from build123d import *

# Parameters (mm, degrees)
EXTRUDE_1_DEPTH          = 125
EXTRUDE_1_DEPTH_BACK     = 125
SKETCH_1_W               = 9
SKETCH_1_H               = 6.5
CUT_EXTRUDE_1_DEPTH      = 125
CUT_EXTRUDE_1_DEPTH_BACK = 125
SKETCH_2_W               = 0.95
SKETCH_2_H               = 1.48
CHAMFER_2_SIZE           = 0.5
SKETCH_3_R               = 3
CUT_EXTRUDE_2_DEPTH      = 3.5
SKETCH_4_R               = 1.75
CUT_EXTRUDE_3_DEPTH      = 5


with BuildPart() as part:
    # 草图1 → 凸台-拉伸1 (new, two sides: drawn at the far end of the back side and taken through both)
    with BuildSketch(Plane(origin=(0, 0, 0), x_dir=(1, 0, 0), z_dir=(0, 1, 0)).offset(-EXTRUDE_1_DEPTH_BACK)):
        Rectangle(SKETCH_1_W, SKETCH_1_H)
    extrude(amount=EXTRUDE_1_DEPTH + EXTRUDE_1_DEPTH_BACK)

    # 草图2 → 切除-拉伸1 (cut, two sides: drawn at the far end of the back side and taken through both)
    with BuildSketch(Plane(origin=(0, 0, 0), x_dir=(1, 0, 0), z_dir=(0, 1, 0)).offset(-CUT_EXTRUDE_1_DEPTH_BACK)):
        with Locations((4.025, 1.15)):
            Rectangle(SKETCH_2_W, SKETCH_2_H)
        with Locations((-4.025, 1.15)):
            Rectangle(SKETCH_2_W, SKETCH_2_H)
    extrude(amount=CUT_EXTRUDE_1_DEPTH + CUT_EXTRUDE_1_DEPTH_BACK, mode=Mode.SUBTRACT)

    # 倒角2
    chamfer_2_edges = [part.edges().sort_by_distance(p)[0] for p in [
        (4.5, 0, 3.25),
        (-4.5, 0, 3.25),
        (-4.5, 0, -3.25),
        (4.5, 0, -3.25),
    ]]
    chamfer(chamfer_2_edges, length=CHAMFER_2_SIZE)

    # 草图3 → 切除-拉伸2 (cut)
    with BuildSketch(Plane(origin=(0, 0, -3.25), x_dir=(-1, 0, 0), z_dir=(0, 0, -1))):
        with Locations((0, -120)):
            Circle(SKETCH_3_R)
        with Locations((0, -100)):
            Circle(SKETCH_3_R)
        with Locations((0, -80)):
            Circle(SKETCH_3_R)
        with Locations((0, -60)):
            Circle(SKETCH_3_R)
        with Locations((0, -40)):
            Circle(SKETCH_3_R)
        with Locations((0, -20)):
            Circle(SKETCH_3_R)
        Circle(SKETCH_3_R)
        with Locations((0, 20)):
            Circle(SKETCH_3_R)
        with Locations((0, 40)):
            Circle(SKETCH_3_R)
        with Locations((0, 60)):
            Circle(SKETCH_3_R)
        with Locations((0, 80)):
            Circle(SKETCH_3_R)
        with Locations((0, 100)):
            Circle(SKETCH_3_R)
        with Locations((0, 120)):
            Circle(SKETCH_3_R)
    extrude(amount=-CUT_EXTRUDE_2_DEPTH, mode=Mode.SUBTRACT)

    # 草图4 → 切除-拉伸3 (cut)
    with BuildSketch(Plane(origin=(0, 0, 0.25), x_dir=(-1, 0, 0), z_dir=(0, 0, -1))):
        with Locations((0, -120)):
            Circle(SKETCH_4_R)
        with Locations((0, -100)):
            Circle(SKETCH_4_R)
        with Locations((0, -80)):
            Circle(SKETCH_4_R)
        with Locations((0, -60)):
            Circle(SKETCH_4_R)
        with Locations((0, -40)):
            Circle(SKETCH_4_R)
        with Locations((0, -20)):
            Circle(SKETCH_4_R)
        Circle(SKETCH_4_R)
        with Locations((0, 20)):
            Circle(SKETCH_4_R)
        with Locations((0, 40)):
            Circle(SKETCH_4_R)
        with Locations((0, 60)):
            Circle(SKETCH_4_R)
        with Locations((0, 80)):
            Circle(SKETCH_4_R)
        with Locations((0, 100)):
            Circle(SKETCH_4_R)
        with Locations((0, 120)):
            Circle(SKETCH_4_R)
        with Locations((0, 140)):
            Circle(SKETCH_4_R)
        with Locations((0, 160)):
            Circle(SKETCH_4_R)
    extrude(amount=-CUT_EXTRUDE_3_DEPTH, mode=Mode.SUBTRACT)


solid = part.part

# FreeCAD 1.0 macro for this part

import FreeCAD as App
import Part
import Sketcher

V = App.Vector


def edges_at(feature, points):
    """Names of the edges that pass closest to the given points."""
    edges = feature.Shape.Edges
    near = lambda p: min(range(len(edges)), key=lambda i: edges[i].distToShape(Part.Vertex(*p))[0])
    return sorted({f"Edge{near(p) + 1}" for p in points})


def add_polygon(sketch, points):
    """Adds a closed chain of lines whose ends are joined by coincident constraints."""
    first, n = sketch.GeometryCount, len(points)
    for a, b in zip(points, points[1:] + points[:1]):
        sketch.addGeometry(Part.LineSegment(App.Vector(*a, 0), App.Vector(*b, 0)), False)
    for i in range(n):
        sketch.addConstraint(Sketcher.Constraint("Coincident", first + i, 2, first + (i + 1) % n, 1))

doc = App.newDocument("Part")
body = doc.addObject("PartDesign::Body", "Body")

# Sketch on XZ plane
sketch1 = doc.addObject("Sketcher::SketchObject", "Sketch")
body.addObject(sketch1)
sketch1.AttachmentSupport = (doc.XZ_Plane, [""])
sketch1.MapMode = "FlatFace"
add_polygon(sketch1, [(-4, -3), (-4, 3), (4, 3), (4, -3)])  # lines 0-3
sketch1.addConstraint([
    Sketcher.Constraint("Vertical", 0),
    Sketcher.Constraint("Horizontal", 1),
    Sketcher.Constraint("Vertical", 2),
    Sketcher.Constraint("Horizontal", 3),
    Sketcher.Constraint("Symmetric", 0, 2, 2, 2, -1, 1),
    Sketcher.Constraint("DistanceX", 1, 1, 1, 2, 9.0),
    Sketcher.Constraint("DistanceY", 0, 1, 0, 2, 6.5),
])
pad1 = doc.addObject("PartDesign::Pad", "Pad")
body.addObject(pad1)
pad1.Profile = sketch1
pad1.Type = "TwoLengths"
pad1.Length = 125
pad1.Length2 = 125
pad1.Reversed = True

# Sketch on XZ plane
sketch2 = doc.addObject("Sketcher::SketchObject", "Sketch001")
body.addObject(sketch2)
sketch2.AttachmentSupport = (doc.XZ_Plane, [""])
sketch2.MapMode = "FlatFace"
add_polygon(sketch2, [(3.5, -1.9), (3.5, -0.4), (4.5, -0.4), (4.5, -1.9)])  # lines 0-3
add_polygon(sketch2, [(-4.5, -1.9), (-4.5, -0.4), (-3.5, -0.4), (-3.5, -1.9)])  # lines 4-7
sketch2.addConstraint([
    Sketcher.Constraint("Vertical", 0),
    Sketcher.Constraint("Horizontal", 1),
    Sketcher.Constraint("Vertical", 2),
    Sketcher.Constraint("Horizontal", 3),
    Sketcher.Constraint("Vertical", 4),
    Sketcher.Constraint("Horizontal", 5),
    Sketcher.Constraint("Vertical", 6),
    Sketcher.Constraint("Horizontal", 7),
    Sketcher.Constraint("Symmetric", 1, 2, 4, 2, -2),
    Sketcher.Constraint("Symmetric", 3, 2, 6, 2, -2),
    Sketcher.Constraint("DistanceX", 4, 2, 1, 2, 9.0),
    Sketcher.Constraint("DistanceX", 1, 1, 1, 2, 0.95),
    Sketcher.Constraint("DistanceY", 0, 1, 0, 2, 1.48),
    Sketcher.Constraint("DistanceY", 0, 2, -1, 1, 0.41),
])
pocket1 = doc.addObject("PartDesign::Pocket", "Pocket")
body.addObject(pocket1)
pocket1.Profile = sketch2
pocket1.Type = "ThroughAll"
pocket1.Midplane = True
doc.recompute()

chamfer = doc.addObject("PartDesign::Chamfer", "Chamfer")
body.addObject(chamfer)
chamfer.Base = (pocket1, edges_at(pocket1, [
    (4.5, 0, 3.25),
    (-4.5, 0, 3.25),
    (-4.5, 0, -3.25),
    (4.5, 0, -3.25),
]))
chamfer.Size = 0.5

# Sketch on XY plane
sketch3 = doc.addObject("Sketcher::SketchObject", "Sketch002")
body.addObject(sketch3)
sketch3.AttachmentSupport = (doc.XY_Plane, [""])
sketch3.MapMode = "FlatFace"
sketch3.AttachmentOffset = App.Placement(V(0, 0, -3.25), App.Rotation())
sketch3.addGeometry([
    Part.Circle(V(0, -120, 0), V(0, 0, 1), 3),  # 0
    Part.Circle(V(0, -100, 0), V(0, 0, 1), 3),  # 1
    Part.Circle(V(0, -80, 0), V(0, 0, 1), 3),  # 2
    Part.Circle(V(0, -60, 0), V(0, 0, 1), 3),  # 3
    Part.Circle(V(0, -40, 0), V(0, 0, 1), 3),  # 4
    Part.Circle(V(0, -20, 0), V(0, 0, 1), 3),  # 5
    Part.Circle(V(0, 0, 0), V(0, 0, 1), 3),  # 6
    Part.Circle(V(0, 20, 0), V(0, 0, 1), 3),  # 7
    Part.Circle(V(0, 40, 0), V(0, 0, 1), 3),  # 8
    Part.Circle(V(0, 60, 0), V(0, 0, 1), 3),  # 9
    Part.Circle(V(0, 80, 0), V(0, 0, 1), 3),  # 10
    Part.Circle(V(0, 100, 0), V(0, 0, 1), 3),  # 11
    Part.Circle(V(0, 120, 0), V(0, 0, 1), 3),  # 12
], False)
sketch3.addConstraint([
    Sketcher.Constraint("Coincident", 6, 3, -1, 1),
    Sketcher.Constraint("Equal", 0, 1),
    Sketcher.Constraint("Equal", 1, 2),
    Sketcher.Constraint("Equal", 2, 3),
    Sketcher.Constraint("Equal", 3, 4),
    Sketcher.Constraint("Equal", 4, 5),
    Sketcher.Constraint("Equal", 5, 6),
    Sketcher.Constraint("Equal", 6, 7),
    Sketcher.Constraint("Equal", 7, 8),
    Sketcher.Constraint("Equal", 8, 9),
    Sketcher.Constraint("Equal", 9, 10),
    Sketcher.Constraint("Equal", 10, 11),
    Sketcher.Constraint("Equal", 11, 12),
    Sketcher.Constraint("Symmetric", 5, 3, 7, 3, -1, 1),
    Sketcher.Constraint("Symmetric", 4, 3, 8, 3, -1, 1),
    Sketcher.Constraint("Symmetric", 3, 3, 9, 3, -1, 1),
    Sketcher.Constraint("Symmetric", 2, 3, 10, 3, -1, 1),
    Sketcher.Constraint("Symmetric", 1, 3, 11, 3, -1, 1),
    Sketcher.Constraint("Symmetric", 0, 3, 12, 3, -1, 1),
    Sketcher.Constraint("PointOnObject", 0, 3, -2),
    Sketcher.Constraint("PointOnObject", 1, 3, -2),
    Sketcher.Constraint("PointOnObject", 2, 3, -2),
    Sketcher.Constraint("PointOnObject", 3, 3, -2),
    Sketcher.Constraint("PointOnObject", 4, 3, -2),
    Sketcher.Constraint("PointOnObject", 5, 3, -2),
    Sketcher.Constraint("Diameter", 0, 6.0),
    Sketcher.Constraint("DistanceY", 0, 3, -1, 1, 120.0),
    Sketcher.Constraint("DistanceY", 1, 3, -1, 1, 100.0),
    Sketcher.Constraint("DistanceY", 2, 3, -1, 1, 80.0),
    Sketcher.Constraint("DistanceY", 3, 3, -1, 1, 60.0),
    Sketcher.Constraint("DistanceY", 4, 3, -1, 1, 40.0),
    Sketcher.Constraint("DistanceY", 5, 3, -1, 1, 20.0),
])
pocket2 = doc.addObject("PartDesign::Pocket", "Pocket001")
body.addObject(pocket2)
pocket2.Profile = sketch3
pocket2.Length = 3.5
pocket2.Reversed = True

# Sketch on XY plane
sketch4 = doc.addObject("Sketcher::SketchObject", "Sketch003")
body.addObject(sketch4)
sketch4.AttachmentSupport = (doc.XY_Plane, [""])
sketch4.MapMode = "FlatFace"
sketch4.AttachmentOffset = App.Placement(V(0, 0, 0.25), App.Rotation())
sketch4.addGeometry([
    Part.Circle(V(0, -120, 0), V(0, 0, 1), 1.8),  # 0
    Part.Circle(V(0, -100, 0), V(0, 0, 1), 1.8),  # 1
    Part.Circle(V(0, -80, 0), V(0, 0, 1), 1.8),  # 2
    Part.Circle(V(0, -60, 0), V(0, 0, 1), 1.8),  # 3
    Part.Circle(V(0, -40, 0), V(0, 0, 1), 1.8),  # 4
    Part.Circle(V(0, -20, 0), V(0, 0, 1), 1.8),  # 5
    Part.Circle(V(0, 0, 0), V(0, 0, 1), 1.8),  # 6
    Part.Circle(V(0, 20, 0), V(0, 0, 1), 1.8),  # 7
    Part.Circle(V(0, 40, 0), V(0, 0, 1), 1.8),  # 8
    Part.Circle(V(0, 60, 0), V(0, 0, 1), 1.8),  # 9
    Part.Circle(V(0, 80, 0), V(0, 0, 1), 1.8),  # 10
    Part.Circle(V(0, 100, 0), V(0, 0, 1), 1.8),  # 11
    Part.Circle(V(0, 120, 0), V(0, 0, 1), 1.8),  # 12
    Part.Circle(V(0, 140, 0), V(0, 0, 1), 1.8),  # 13
    Part.Circle(V(0, 160, 0), V(0, 0, 1), 1.8),  # 14
], False)
sketch4.addConstraint([
    Sketcher.Constraint("Coincident", 6, 3, -1, 1),
    Sketcher.Constraint("Equal", 0, 1),
    Sketcher.Constraint("Equal", 1, 2),
    Sketcher.Constraint("Equal", 2, 3),
    Sketcher.Constraint("Equal", 3, 4),
    Sketcher.Constraint("Equal", 4, 5),
    Sketcher.Constraint("Equal", 5, 6),
    Sketcher.Constraint("Equal", 6, 7),
    Sketcher.Constraint("Equal", 7, 8),
    Sketcher.Constraint("Equal", 8, 9),
    Sketcher.Constraint("Equal", 9, 10),
    Sketcher.Constraint("Equal", 10, 11),
    Sketcher.Constraint("Equal", 11, 12),
    Sketcher.Constraint("Equal", 12, 13),
    Sketcher.Constraint("Equal", 13, 14),
    Sketcher.Constraint("Symmetric", 5, 3, 7, 3, -1, 1),
    Sketcher.Constraint("Symmetric", 4, 3, 8, 3, -1, 1),
    Sketcher.Constraint("Symmetric", 3, 3, 9, 3, -1, 1),
    Sketcher.Constraint("Symmetric", 2, 3, 10, 3, -1, 1),
    Sketcher.Constraint("Symmetric", 1, 3, 11, 3, -1, 1),
    Sketcher.Constraint("Symmetric", 0, 3, 12, 3, -1, 1),
    Sketcher.Constraint("PointOnObject", 0, 3, -2),
    Sketcher.Constraint("PointOnObject", 1, 3, -2),
    Sketcher.Constraint("PointOnObject", 2, 3, -2),
    Sketcher.Constraint("PointOnObject", 3, 3, -2),
    Sketcher.Constraint("PointOnObject", 4, 3, -2),
    Sketcher.Constraint("PointOnObject", 5, 3, -2),
    Sketcher.Constraint("PointOnObject", 13, 3, -2),
    Sketcher.Constraint("PointOnObject", 14, 3, -2),
    Sketcher.Constraint("Diameter", 0, 3.5),
    Sketcher.Constraint("DistanceY", 0, 3, -1, 1, 120.0),
    Sketcher.Constraint("DistanceY", 1, 3, -1, 1, 100.0),
    Sketcher.Constraint("DistanceY", 2, 3, -1, 1, 80.0),
    Sketcher.Constraint("DistanceY", 3, 3, -1, 1, 60.0),
    Sketcher.Constraint("DistanceY", 4, 3, -1, 1, 40.0),
    Sketcher.Constraint("DistanceY", 5, 3, -1, 1, 20.0),
    Sketcher.Constraint("DistanceY", -1, 1, 13, 3, 140.0),
    Sketcher.Constraint("DistanceY", -1, 1, 14, 3, 160.0),
])
pocket3 = doc.addObject("PartDesign::Pocket", "Pocket002")
body.addObject(pocket3)
pocket3.Profile = sketch4
pocket3.Length = 5
pocket3.Reversed = True

doc.recompute()
